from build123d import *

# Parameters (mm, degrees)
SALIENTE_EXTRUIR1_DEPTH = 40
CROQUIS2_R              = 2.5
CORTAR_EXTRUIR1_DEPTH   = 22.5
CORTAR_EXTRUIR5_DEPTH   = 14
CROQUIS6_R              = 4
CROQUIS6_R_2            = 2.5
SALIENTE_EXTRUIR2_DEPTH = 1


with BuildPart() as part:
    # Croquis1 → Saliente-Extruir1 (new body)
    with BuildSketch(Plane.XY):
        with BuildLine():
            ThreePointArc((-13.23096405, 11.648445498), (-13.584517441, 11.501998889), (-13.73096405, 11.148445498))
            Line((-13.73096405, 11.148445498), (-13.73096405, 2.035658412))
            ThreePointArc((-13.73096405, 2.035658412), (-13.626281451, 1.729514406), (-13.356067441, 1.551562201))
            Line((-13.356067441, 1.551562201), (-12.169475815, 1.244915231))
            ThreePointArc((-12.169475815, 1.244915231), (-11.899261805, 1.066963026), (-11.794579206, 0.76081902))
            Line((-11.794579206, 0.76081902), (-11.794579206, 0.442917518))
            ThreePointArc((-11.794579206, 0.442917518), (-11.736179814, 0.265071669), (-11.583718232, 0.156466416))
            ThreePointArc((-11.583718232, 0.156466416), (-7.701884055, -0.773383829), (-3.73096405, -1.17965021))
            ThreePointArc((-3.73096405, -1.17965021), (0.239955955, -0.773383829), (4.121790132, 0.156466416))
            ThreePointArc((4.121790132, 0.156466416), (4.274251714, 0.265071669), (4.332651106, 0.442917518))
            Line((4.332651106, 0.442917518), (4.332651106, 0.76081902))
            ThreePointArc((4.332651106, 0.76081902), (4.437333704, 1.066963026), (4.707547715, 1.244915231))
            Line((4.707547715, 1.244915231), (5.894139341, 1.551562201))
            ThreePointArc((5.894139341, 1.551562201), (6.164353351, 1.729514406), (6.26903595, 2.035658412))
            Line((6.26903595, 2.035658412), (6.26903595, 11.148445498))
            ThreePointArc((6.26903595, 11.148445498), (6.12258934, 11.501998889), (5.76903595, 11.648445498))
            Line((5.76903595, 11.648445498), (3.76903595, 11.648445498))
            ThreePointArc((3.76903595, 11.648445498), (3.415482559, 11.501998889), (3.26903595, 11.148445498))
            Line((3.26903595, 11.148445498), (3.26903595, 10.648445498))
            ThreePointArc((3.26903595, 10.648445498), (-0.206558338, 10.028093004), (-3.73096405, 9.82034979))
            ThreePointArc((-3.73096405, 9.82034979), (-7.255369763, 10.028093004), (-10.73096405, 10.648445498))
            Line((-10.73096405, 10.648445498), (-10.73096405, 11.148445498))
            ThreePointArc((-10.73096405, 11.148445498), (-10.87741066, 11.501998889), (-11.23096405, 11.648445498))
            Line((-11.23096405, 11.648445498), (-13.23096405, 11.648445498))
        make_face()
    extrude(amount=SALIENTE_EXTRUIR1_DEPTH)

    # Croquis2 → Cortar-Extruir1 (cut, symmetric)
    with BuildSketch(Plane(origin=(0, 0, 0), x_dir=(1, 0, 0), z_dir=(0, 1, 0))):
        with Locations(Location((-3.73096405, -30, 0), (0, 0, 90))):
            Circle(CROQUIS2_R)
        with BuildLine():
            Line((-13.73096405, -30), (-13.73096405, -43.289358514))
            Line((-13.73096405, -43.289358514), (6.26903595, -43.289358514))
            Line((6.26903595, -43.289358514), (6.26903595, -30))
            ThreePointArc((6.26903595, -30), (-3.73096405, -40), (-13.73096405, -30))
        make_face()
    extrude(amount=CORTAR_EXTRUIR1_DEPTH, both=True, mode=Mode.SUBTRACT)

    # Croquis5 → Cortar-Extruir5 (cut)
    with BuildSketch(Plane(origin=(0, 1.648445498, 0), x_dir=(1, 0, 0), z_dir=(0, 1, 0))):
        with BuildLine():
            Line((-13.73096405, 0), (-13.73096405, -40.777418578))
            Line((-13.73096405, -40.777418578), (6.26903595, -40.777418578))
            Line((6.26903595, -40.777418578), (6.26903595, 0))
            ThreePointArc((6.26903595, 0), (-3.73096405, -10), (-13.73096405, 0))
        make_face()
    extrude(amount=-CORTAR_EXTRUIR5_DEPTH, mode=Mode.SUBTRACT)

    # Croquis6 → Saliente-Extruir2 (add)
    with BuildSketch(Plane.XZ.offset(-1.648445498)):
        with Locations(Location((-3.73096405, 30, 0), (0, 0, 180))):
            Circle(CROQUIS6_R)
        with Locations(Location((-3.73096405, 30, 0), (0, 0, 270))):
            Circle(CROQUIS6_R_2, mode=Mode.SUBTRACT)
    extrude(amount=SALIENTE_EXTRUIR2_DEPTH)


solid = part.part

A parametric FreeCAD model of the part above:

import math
import FreeCAD as App
import Part
import Sketcher

V = App.Vector

doc = App.newDocument("Part")
params = doc.addObject("Spreadsheet::Sheet", "Params")
for row, (alias, value) in enumerate([
    ("sketch1_radius", "30 mm"),
    ("sketch1_radius2", "0.5 mm"),
    ("sketch1_radius3", "0.3 mm"),
    ("sketch1_width", "2 mm"),
    ("sketch1_height", "0.5 mm"),
    ("pad1_length", "40 mm"),
    ("sketch2_diameter", "5 mm"),
    ("sketch2_radius", "10 mm"),
    ("pocket1_length", "45 mm"),
    ("sketch3_radius", "10 mm"),
    ("pocket2_length", "14 mm"),
    ("sketch4_diameter", "8 mm"),
    ("sketch4_diameter2", "5 mm"),
    ("pad2_length", "1 mm"),
], start=1):
    params.set(f"A{row}", alias)
    params.set(f"B{row}", "=" + value)
    params.setAlias(f"B{row}", alias)

body = doc.addObject("PartDesign::Body", "Body")

# Sketch on XY plane
sketch1 = body.newObject("Sketcher::SketchObject", "Sketch")
sketch1.AttachmentSupport = (doc.getObject("XY_Plane"), [""])
sketch1.MapMode = "FlatFace"
sketch1.addGeometry([
    Part.ArcOfCircle(Part.Circle(V(-13.230964, 11.148445, 0), V(0, 0, 1), 0.5), math.radians(90), math.radians(180)),  # 0
    Part.LineSegment(V(-13.730964, 11.148445, 0), V(-13.730964, 2.035658, 0)),  # 1
    Part.ArcOfCircle(Part.Circle(V(-13.230964, 2.035658, 0), V(0, 0, 1), 0.5), math.radians(180), math.radians(255.510251)),  # 2
    Part.LineSegment(V(-13.356067, 1.551562, 0), V(-12.169476, 1.244915, 0)),  # 3
    Part.ArcOfCircle(Part.Circle(V(-12.294579, 0.760819, 0), V(0, 0, 1), 0.5), math.radians(0), math.radians(75.510251)),  # 4
    Part.LineSegment(V(-11.794579, 0.760819, 0), V(-11.794579, 0.442918, 0)),  # 5
    Part.ArcOfCircle(Part.Circle(V(-11.494579, 0.442918, 0), V(0, 0, 1), 0.3), math.radians(-180), math.radians(-107.285311)),  # 6
    Part.ArcOfCircle(Part.Circle(V(-2.669816, 28.801577, 0), V(0, 0, 1), 30), math.radians(-107.285311), math.radians(-92.027067)),  # 7
    Part.ArcOfCircle(Part.Circle(V(-4.792112, 28.801577, 0), V(0, 0, 1), 30), math.radians(-87.972933), math.radians(-72.714689)),  # 8
    Part.ArcOfCircle(Part.Circle(V(4.032651, 0.442918, 0), V(0, 0, 1), 0.3), math.radians(-72.714689), math.radians(0)),  # 9
    Part.LineSegment(V(4.332651, 0.442918, 0), V(4.332651, 0.760819, 0)),  # 10
    Part.ArcOfCircle(Part.Circle(V(4.832651, 0.760819, 0), V(0, 0, 1), 0.5), math.radians(104.489749), math.radians(180)),  # 11
    Part.LineSegment(V(4.707548, 1.244915, 0), V(5.894139, 1.551562, 0)),  # 12
    Part.ArcOfCircle(Part.Circle(V(5.769036, 2.035658, 0), V(0, 0, 1), 0.5), math.radians(-75.510251), math.radians(0)),  # 13
    Part.LineSegment(V(6.269036, 2.035658, 0), V(6.269036, 11.148445, 0)),  # 14
    Part.ArcOfCircle(Part.Circle(V(5.769036, 11.148445, 0), V(0, 0, 1), 0.5), math.radians(0), math.radians(90)),  # 15
    Part.LineSegment(V(5.769036, 11.648445, 0), V(3.769036, 11.648445, 0)),  # 16
    Part.ArcOfCircle(Part.Circle(V(3.769036, 11.148445, 0), V(0, 0, 1), 0.5), math.radians(90), math.radians(180)),  # 17
    Part.LineSegment(V(3.269036, 11.148445, 0), V(3.269036, 10.648445, 0)),  # 18
    Part.ArcOfCircle(Part.Circle(V(-3.730964, 39.82035, 0), V(0, 0, 1), 30), math.radians(-90), math.radians(-76.506601)),  # 19
    Part.ArcOfCircle(Part.Circle(V(-3.730964, 39.82035, 0), V(0, 0, 1), 30), math.radians(-103.493399), math.radians(-90)),  # 20
    Part.LineSegment(V(-10.730964, 10.648445, 0), V(-10.730964, 11.148445, 0)),  # 21
    Part.ArcOfCircle(Part.Circle(V(-11.230964, 11.148445, 0), V(0, 0, 1), 0.5), math.radians(0), math.radians(90)),  # 22
    Part.LineSegment(V(-11.230964, 11.648445, 0), V(-13.230964, 11.648445, 0)),  # 23
], False)
sketch1.addConstraint([
    Sketcher.Constraint("Tangent", 0, 2, 1, 1),
    Sketcher.Constraint("Tangent", 1, 2, 2, 1),
    Sketcher.Constraint("Tangent", 2, 2, 3, 1),
    Sketcher.Constraint("Tangent", 3, 2, 4, 2),
    Sketcher.Constraint("Tangent", 4, 1, 5, 1),
    Sketcher.Constraint("Tangent", 5, 2, 6, 1),
    Sketcher.Constraint("Tangent", 6, 2, 7, 1),
    Sketcher.Constraint("Coincident", 7, 2, 8, 1),
    Sketcher.Constraint("Tangent", 8, 2, 9, 1),
    Sketcher.Constraint("Tangent", 9, 2, 10, 1),
    Sketcher.Constraint("Tangent", 10, 2, 11, 2),
    Sketcher.Constraint("Tangent", 11, 1, 12, 1),
    Sketcher.Constraint("Tangent", 12, 2, 13, 1),
    Sketcher.Constraint("Tangent", 13, 2, 14, 1),
    Sketcher.Constraint("Tangent", 14, 2, 15, 1),
    Sketcher.Constraint("Tangent", 15, 2, 16, 1),
    Sketcher.Constraint("Tangent", 16, 2, 17, 1),
    Sketcher.Constraint("Tangent", 17, 2, 18, 1),
    Sketcher.Constraint("Coincident", 18, 2, 19, 2),
    Sketcher.Constraint("Tangent", 19, 1, 20, 2),
    Sketcher.Constraint("Coincident", 20, 1, 21, 1),
    Sketcher.Constraint("Tangent", 21, 2, 22, 1),
    Sketcher.Constraint("Tangent", 22, 2, 23, 1),
    Sketcher.Constraint("Tangent", 23, 2, 0, 1),
    Sketcher.Constraint("Vertical", 1),
    Sketcher.Constraint("Vertical", 5),
    Sketcher.Constraint("Vertical", 10),
    Sketcher.Constraint("Vertical", 14),
    Sketcher.Constraint("Horizontal", 16),
    Sketcher.Constraint("Vertical", 18),
    Sketcher.Constraint("Vertical", 21),
    Sketcher.Constraint("Horizontal", 23),
    Sketcher.Constraint("Equal", 0, 2),
    Sketcher.Constraint("Equal", 2, 4),
    Sketcher.Constraint("Equal", 7, 8),
    Sketcher.Constraint("Equal", 6, 9),
    Sketcher.Constraint("Equal", 4, 11),
    Sketcher.Constraint("Equal", 11, 13),
    Sketcher.Constraint("Equal", 13, 15),
    Sketcher.Constraint("Equal", 15, 17),
    Sketcher.Constraint("Equal", 8, 19),
    Sketcher.Constraint("Equal", 19, 20),
    Sketcher.Constraint("Equal", 17, 22),
    Sketcher.Constraint("Horizontal", 7, 3, 8, 3),
    Sketcher.Constraint("Horizontal", 6, 3, 9, 3),
    Sketcher.Constraint("Horizontal", 4, 3, 11, 3),
    Sketcher.Constraint("Horizontal", 2, 3, 13, 3),
    Sketcher.Constraint("Horizontal", 0, 3, 15, 3),
    Sketcher.Constraint("Horizontal", 3, 2, 11, 1),
    Sketcher.Constraint("Horizontal", 18, 2, 20, 1),
    Sketcher.Constraint("Vertical", 20, 3, 7, 2),
    Sketcher.Constraint("Vertical", 7, 2, 19, 1),
    Sketcher.Constraint("Radius", 7, 30.0),
    Sketcher.Constraint("Radius", 0, 0.5),
    Sketcher.Constraint("Radius", 6, 0.3),
    Sketcher.Constraint("DistanceX", 16, 2, 16, 1, 2.0),
    Sketcher.Constraint("DistanceY", 18, 2, 18, 1, 0.5),
    Sketcher.Constraint("DistanceX", 2, 3, 13, 3, 19.0),
    Sketcher.Constraint("DistanceY", 5, 2, 5, 1, 0.317902),
    Sketcher.Constraint("DistanceY", 1, 2, 1, 1, 9.112787),
    Sketcher.Constraint("DistanceY", -1, 1, 2, 3, 2.035658),
    Sketcher.Constraint("DistanceX", 4, 3, -1, 1, 12.294579),
    Sketcher.Constraint("DistanceY", -1, 1, 4, 3, 0.760819),
    Sketcher.Constraint("DistanceX", -1, 1, 9, 3, 4.032651),
    Sketcher.Constraint("DistanceX", 6, 2, -1, 1, 11.583718),
])
sketch1.setExpression("Constraints[52]", "Params.sketch1_radius")
sketch1.setExpression("Constraints[53]", "Params.sketch1_radius2")
sketch1.setExpression("Constraints[54]", "Params.sketch1_radius3")
sketch1.setExpression("Constraints[55]", "Params.sketch1_width")
sketch1.setExpression("Constraints[56]", "Params.sketch1_height")
pad1 = body.newObject("PartDesign::Pad", "Pad")
pad1.Profile = sketch1
pad1.setExpression("Length", "Params.pad1_length")

# Sketch on XZ plane
sketch2 = body.newObject("Sketcher::SketchObject", "Sketch001")
sketch2.AttachmentSupport = (doc.getObject("XZ_Plane"), [""])
sketch2.MapMode = "FlatFace"
sketch2.addGeometry([
    Part.Circle(V(-3.730964, 30, 0), V(0, 0, 1), 2.5),  # 0
    Part.LineSegment(V(-13.730964, 30, 0), V(-13.730964, 43.289359, 0)),  # 1
    Part.LineSegment(V(-13.730964, 43.289359, 0), V(6.269036, 43.289359, 0)),  # 2
    Part.LineSegment(V(6.269036, 43.289359, 0), V(6.269036, 30, 0)),  # 3
    Part.ArcOfCircle(Part.Circle(V(-3.730964, 30, 0), V(0, 0, 1), 10), math.radians(0), math.radians(180)),  # 4
], False)
sketch2.addConstraint([
    Sketcher.Constraint("Coincident", 1, 2, 2, 1),
    Sketcher.Constraint("Coincident", 2, 2, 3, 1),
    Sketcher.Constraint("Tangent", 3, 2, 4, 1),
    Sketcher.Constraint("Tangent", 4, 2, 1, 1),
    Sketcher.Constraint("Vertical", 1),
    Sketcher.Constraint("Horizontal", 2),
    Sketcher.Constraint("Vertical", 3),
    Sketcher.Constraint("Coincident", 4, 3, 0, 3),
    Sketcher.Constraint("Diameter", 0, 5.0),
    Sketcher.Constraint("Radius", 4, 10.0),
    Sketcher.Constraint("DistanceY", -1, 1, 0, 3, 30.0),
    Sketcher.Constraint("DistanceY", 1, 1, 1, 2, 13.289359),
    Sketcher.Constraint("DistanceX", 0, 3, -1, 1, 3.730964),
])
sketch2.setExpression("Constraints[8]", "Params.sketch2_diameter")
sketch2.setExpression("Constraints[9]", "Params.sketch2_radius")
pocket1 = body.newObject("PartDesign::Pocket", "Pocket")
pocket1.Profile = sketch2
pocket1.setExpression("Length", "Params.pocket1_length")
pocket1.Midplane = True

# Sketch on XZ plane
sketch3 = body.newObject("Sketcher::SketchObject", "Sketch002")
sketch3.AttachmentSupport = (doc.getObject("XZ_Plane"), [""])
sketch3.MapMode = "FlatFace"
sketch3.AttachmentOffset = App.Placement(V(0, 0, -1.648445), App.Rotation())
sketch3.addGeometry([
    Part.LineSegment(V(-13.730964, 0, 0), V(-13.730964, 40.777419, 0)),
    Part.LineSegment(V(-13.730964, 40.777419, 0), V(6.269036, 40.777419, 0)),
    Part.LineSegment(V(6.269036, 40.777419, 0), V(6.269036, 0, 0)),
    Part.ArcOfCircle(Part.Circle(V(-3.730964, 0, 0), V(0, 0, 1), 10), math.radians(0), math.radians(180)),
], False)
sketch3.addConstraint([
    Sketcher.Constraint("Coincident", 0, 2, 1, 1),
    Sketcher.Constraint("Coincident", 1, 2, 2, 1),
    Sketcher.Constraint("Tangent", 2, 2, 3, 1),
    Sketcher.Constraint("Tangent", 3, 2, 0, 1),
    Sketcher.Constraint("Vertical", 0),
    Sketcher.Constraint("Horizontal", 1),
    Sketcher.Constraint("Vertical", 2),
    Sketcher.Constraint("PointOnObject", 3, 3, -1),
    Sketcher.Constraint("Radius", 3, 10.0),
    Sketcher.Constraint("DistanceY", 0, 1, 0, 2, 40.777419),
    Sketcher.Constraint("DistanceX", 3, 3, -1, 1, 3.730964),
])
sketch3.setExpression("Constraints[8]", "Params.sketch3_radius")
pocket2 = body.newObject("PartDesign::Pocket", "Pocket001")
pocket2.Profile = sketch3
pocket2.setExpression("Length", "Params.pocket2_length")
pocket2.Reversed = True

# Sketch on XZ plane
sketch4 = body.newObject("Sketcher::SketchObject", "Sketch003")
sketch4.AttachmentSupport = (doc.getObject("XZ_Plane"), [""])
sketch4.MapMode = "FlatFace"
sketch4.AttachmentOffset = App.Placement(V(0, 0, -1.648445), App.Rotation())
sketch4.addGeometry([
    Part.Circle(V(-3.730964, 30, 0), V(0, 0, 1), 4),
    Part.Circle(V(-3.730964, 30, 0), V(0, 0, 1), 2.5),
], False)
sketch4.addConstraint([
    Sketcher.Constraint("Coincident", 1, 3, 0, 3),
    Sketcher.Constraint("Diameter", 0, 8.0),
    Sketcher.Constraint("Diameter", 1, 5.0),
    Sketcher.Constraint("DistanceY", -1, 1, 0, 3, 30.0),
    Sketcher.Constraint("DistanceX", 0, 3, -1, 1, 3.730964),
])
sketch4.setExpression("Constraints[1]", "Params.sketch4_diameter")
sketch4.setExpression("Constraints[2]", "Params.sketch4_diameter2")
pad2 = body.newObject("PartDesign::Pad", "Pad001")
pad2.Profile = sketch4
pad2.setExpression("Length", "Params.pad2_length")

doc.recompute()
